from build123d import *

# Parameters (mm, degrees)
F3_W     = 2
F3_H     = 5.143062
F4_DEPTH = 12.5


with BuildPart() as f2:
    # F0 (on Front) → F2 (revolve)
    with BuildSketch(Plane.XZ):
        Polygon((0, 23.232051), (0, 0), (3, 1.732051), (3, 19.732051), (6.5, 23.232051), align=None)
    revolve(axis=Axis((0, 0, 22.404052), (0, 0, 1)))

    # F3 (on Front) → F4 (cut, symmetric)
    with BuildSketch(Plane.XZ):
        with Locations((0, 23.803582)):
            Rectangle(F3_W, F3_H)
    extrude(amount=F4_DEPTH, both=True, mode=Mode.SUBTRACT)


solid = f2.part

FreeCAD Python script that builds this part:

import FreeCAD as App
import Part
import Sketcher

V = App.Vector
Q = App.Units.Quantity

doc = App.newDocument("Part")
params = doc.addObject("Spreadsheet::Sheet", "Params")
for row, (alias, value) in enumerate([
    ("sketch1_height", "18 mm"),
    ("sketch1_width", "6.5 mm"),
    ("revolution_angle", "360 deg"),
    ("sketch2_width", "2 mm"),
    ("pocket1_length", "25 mm"),
], start=1):
    params.set(f"A{row}", alias)
    params.set(f"B{row}", "=" + value)
    params.setAlias(f"B{row}", alias)

body = doc.addObject("PartDesign::Body", "Body")

# Sketch on XZ plane
sketch1 = doc.addObject("Sketcher::SketchObject", "Sketch")
body.addObject(sketch1)
sketch1.AttachmentSupport = (doc.XZ_Plane, [""])
sketch1.MapMode = "FlatFace"
sketch1.addGeometry([
    Part.LineSegment(V(0, 23.2, 0), V(0, 0, 0)),  # 0
    Part.LineSegment(V(0, 0, 0), V(3, 1.7, 0)),  # 1
    Part.LineSegment(V(3, 1.7, 0), V(3, 19.7, 0)),  # 2
    Part.LineSegment(V(3, 19.7, 0), V(6.5, 23.2, 0)),  # 3
    Part.LineSegment(V(6.5, 23.2, 0), V(0, 23.2, 0)),  # 4
], False)
sketch1.addConstraint([
    Sketcher.Constraint("Coincident", 0, 2, 1, 1),
    Sketcher.Constraint("Coincident", 1, 2, 2, 1),
    Sketcher.Constraint("Coincident", 2, 2, 3, 1),
    Sketcher.Constraint("Coincident", 3, 2, 4, 1),
    Sketcher.Constraint("Coincident", 4, 2, 0, 1),
    Sketcher.Constraint("Vertical", 0),
    Sketcher.Constraint("Vertical", 2),
    Sketcher.Constraint("Horizontal", 4),
    Sketcher.Constraint("Coincident", 0, 2, -1, 1),
    Sketcher.Constraint("DistanceY", 2, 1, 2, 2, Q("18 mm")),
    Sketcher.Constraint("Angle", 1, Q("30.000003 deg")),
    Sketcher.Constraint("Angle", 3, Q("45 deg")),
    Sketcher.Constraint("DistanceX", 4, 2, 4, 1, Q("6.5 mm")),
    Sketcher.Constraint("DistanceX", -1, 1, 1, 2, Q("3 mm")),
])
sketch1.setExpression("Constraints[9]", "Params.sketch1_height")
sketch1.setExpression("Constraints[12]", "Params.sketch1_width")
revolution = doc.addObject("PartDesign::Revolution", "Revolution")
body.addObject(revolution)
revolution.Profile = sketch1
revolution.ReferenceAxis = (sketch1, ["V_Axis"])
revolution.setExpression("Angle", "Params.revolution_angle")

# Sketch on XZ plane
sketch2 = doc.addObject("Sketcher::SketchObject", "Sketch001")
body.addObject(sketch2)
sketch2.AttachmentSupport = (doc.XZ_Plane, [""])
sketch2.MapMode = "FlatFace"
sketch2.addGeometry([
    Part.LineSegment(V(-1, 26.4, 0), V(-1, 21.2, 0)),
    Part.LineSegment(V(-1, 21.2, 0), V(1, 21.2, 0)),
    Part.LineSegment(V(1, 21.2, 0), V(1, 26.4, 0)),
    Part.LineSegment(V(1, 26.4, 0), V(-1, 26.4, 0)),
], False)
sketch2.addConstraint([
    Sketcher.Constraint("Coincident", 0, 2, 1, 1),
    Sketcher.Constraint("Coincident", 1, 2, 2, 1),
    Sketcher.Constraint("Coincident", 2, 2, 3, 1),
    Sketcher.Constraint("Coincident", 3, 2, 0, 1),
    Sketcher.Constraint("Vertical", 0),
    Sketcher.Constraint("Horizontal", 1),
    Sketcher.Constraint("Vertical", 2),
    Sketcher.Constraint("Horizontal", 3),
    Sketcher.Constraint("DistanceX", 1, 1, 1, 2, Q("2 mm")),
    Sketcher.Constraint("DistanceX", 0, 2, -1, 1, Q("1 mm")),
    Sketcher.Constraint("DistanceY", 0, 2, 0, 1, Q("5.143062 mm")),
    Sketcher.Constraint("DistanceY", -1, 1, 0, 2, Q("21.232051 mm")),
])
sketch2.setExpression("Constraints[8]", "Params.sketch2_width")
pocket1 = doc.addObject("PartDesign::Pocket", "Pocket")
body.addObject(pocket1)
pocket1.Profile = sketch2
pocket1.setExpression("Length", "Params.pocket1_length")
pocket1.Midplane = True

doc.recompute()
